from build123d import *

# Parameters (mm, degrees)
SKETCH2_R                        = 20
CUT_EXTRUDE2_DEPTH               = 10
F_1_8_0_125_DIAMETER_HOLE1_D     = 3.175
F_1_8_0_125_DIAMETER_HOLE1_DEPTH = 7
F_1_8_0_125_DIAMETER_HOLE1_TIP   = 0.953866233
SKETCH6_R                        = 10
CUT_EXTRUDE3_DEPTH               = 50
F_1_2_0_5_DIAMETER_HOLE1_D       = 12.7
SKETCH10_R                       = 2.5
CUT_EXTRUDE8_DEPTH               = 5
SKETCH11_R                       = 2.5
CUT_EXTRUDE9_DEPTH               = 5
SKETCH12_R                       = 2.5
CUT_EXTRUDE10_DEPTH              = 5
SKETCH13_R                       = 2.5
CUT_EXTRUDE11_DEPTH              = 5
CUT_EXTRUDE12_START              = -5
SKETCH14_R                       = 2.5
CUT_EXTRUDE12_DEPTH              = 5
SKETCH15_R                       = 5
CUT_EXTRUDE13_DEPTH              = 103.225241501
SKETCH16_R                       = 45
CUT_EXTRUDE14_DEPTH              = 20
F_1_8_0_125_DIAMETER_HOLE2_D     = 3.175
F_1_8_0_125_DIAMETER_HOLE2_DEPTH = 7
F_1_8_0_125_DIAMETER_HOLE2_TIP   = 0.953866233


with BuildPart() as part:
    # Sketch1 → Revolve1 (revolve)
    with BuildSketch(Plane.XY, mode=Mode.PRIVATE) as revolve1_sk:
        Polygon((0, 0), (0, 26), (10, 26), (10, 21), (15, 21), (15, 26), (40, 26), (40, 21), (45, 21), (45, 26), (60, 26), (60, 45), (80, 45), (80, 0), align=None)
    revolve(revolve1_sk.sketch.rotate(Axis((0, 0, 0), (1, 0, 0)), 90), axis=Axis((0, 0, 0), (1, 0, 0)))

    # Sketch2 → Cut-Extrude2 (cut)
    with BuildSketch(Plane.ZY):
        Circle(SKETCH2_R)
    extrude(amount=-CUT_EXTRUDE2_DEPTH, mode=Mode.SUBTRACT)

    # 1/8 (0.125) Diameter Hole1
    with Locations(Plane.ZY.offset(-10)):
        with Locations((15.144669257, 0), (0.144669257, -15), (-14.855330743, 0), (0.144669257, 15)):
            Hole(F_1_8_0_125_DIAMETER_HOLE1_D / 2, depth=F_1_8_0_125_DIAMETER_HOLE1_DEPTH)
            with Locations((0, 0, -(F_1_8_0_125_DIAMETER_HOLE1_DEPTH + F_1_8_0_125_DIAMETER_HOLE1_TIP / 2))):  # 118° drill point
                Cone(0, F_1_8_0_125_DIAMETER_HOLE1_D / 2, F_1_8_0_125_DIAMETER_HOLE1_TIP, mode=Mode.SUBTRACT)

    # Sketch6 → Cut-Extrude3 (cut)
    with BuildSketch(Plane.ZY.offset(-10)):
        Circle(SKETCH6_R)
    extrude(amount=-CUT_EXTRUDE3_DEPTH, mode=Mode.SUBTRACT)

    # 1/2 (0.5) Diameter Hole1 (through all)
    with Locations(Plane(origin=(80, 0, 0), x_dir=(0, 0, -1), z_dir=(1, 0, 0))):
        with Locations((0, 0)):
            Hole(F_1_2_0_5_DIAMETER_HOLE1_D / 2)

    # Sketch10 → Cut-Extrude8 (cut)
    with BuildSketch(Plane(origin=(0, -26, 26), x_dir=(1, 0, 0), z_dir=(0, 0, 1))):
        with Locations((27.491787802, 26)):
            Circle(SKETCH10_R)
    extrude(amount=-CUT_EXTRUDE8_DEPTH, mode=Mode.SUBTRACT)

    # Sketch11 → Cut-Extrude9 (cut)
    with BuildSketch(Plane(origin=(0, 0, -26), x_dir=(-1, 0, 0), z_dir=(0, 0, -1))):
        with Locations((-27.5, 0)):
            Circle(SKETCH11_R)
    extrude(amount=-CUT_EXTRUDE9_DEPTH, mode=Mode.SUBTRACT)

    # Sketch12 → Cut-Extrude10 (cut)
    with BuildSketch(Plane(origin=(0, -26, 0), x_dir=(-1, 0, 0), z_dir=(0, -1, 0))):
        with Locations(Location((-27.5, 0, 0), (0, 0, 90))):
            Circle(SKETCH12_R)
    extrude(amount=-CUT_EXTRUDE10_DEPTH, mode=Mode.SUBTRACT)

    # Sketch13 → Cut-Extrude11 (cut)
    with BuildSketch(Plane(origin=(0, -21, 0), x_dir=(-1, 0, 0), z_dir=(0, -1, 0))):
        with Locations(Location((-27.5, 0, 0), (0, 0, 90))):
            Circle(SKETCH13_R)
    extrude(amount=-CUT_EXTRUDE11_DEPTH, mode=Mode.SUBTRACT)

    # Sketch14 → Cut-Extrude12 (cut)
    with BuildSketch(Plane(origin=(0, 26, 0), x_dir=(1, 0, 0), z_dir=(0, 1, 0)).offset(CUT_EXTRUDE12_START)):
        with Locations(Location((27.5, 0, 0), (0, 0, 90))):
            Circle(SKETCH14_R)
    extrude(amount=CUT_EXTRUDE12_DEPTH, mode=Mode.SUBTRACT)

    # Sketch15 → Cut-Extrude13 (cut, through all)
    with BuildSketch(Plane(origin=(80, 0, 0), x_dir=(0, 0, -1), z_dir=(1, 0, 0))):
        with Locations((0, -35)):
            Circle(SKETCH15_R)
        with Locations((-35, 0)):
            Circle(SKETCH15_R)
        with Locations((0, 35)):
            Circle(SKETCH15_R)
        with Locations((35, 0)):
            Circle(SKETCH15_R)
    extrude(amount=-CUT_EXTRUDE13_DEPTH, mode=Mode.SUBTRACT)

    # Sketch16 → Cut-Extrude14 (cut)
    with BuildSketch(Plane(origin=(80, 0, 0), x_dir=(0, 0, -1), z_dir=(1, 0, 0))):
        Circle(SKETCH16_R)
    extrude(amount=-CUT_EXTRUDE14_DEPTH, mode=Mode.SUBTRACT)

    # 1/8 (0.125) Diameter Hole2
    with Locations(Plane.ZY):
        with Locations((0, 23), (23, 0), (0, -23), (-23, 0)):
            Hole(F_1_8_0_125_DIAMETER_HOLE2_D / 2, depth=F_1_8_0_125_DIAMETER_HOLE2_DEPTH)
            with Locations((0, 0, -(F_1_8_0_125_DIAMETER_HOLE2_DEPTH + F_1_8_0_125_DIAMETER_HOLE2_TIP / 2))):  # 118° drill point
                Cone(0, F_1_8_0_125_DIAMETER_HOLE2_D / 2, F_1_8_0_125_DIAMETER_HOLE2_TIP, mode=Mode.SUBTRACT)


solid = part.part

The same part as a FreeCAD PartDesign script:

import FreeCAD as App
import Part
import Sketcher

V = App.Vector
Q = App.Units.Quantity

doc = App.newDocument("Part")
body = doc.addObject("PartDesign::Body", "Body")

sketch1 = body.newObject("Sketcher::SketchObject", "Sketch")
sketch1.AttachmentSupport = (doc.getObject("XY_Plane"), [""])
sketch1.MapMode = "FlatFace"
sketch1.addGeometry([
    Part.LineSegment(V(0, 26, 0), V(0, 0, 0)),
    Part.LineSegment(V(0, 0, 0), V(80, 0, 0)),
    Part.LineSegment(V(80, 0, 0), V(80, 45, 0)),
    Part.LineSegment(V(80, 45, 0), V(60, 45, 0)),
    Part.LineSegment(V(60, 45, 0), V(60, 26, 0)),
    Part.LineSegment(V(60, 26, 0), V(45, 26, 0)),
    Part.LineSegment(V(45, 26, 0), V(45, 21, 0)),
    Part.LineSegment(V(45, 21, 0), V(40, 21, 0)),
    Part.LineSegment(V(40, 21, 0), V(40, 26, 0)),
    Part.LineSegment(V(40, 26, 0), V(15, 26, 0)),
    Part.LineSegment(V(15, 26, 0), V(15, 21, 0)),
    Part.LineSegment(V(15, 21, 0), V(10, 21, 0)),
    Part.LineSegment(V(10, 21, 0), V(10, 26, 0)),
    Part.LineSegment(V(10, 26, 0), V(0, 26, 0)),
], False)
sketch1.addConstraint([
    Sketcher.Constraint("Coincident", 0, 2, 1, 1),
    Sketcher.Constraint("Coincident", 1, 2, 2, 1),
    Sketcher.Constraint("Coincident", 2, 2, 3, 1),
    Sketcher.Constraint("Coincident", 3, 2, 4, 1),
    Sketcher.Constraint("Coincident", 4, 2, 5, 1),
    Sketcher.Constraint("Coincident", 5, 2, 6, 1),
    Sketcher.Constraint("Coincident", 6, 2, 7, 1),
    Sketcher.Constraint("Coincident", 7, 2, 8, 1),
    Sketcher.Constraint("Coincident", 8, 2, 9, 1),
    Sketcher.Constraint("Coincident", 9, 2, 10, 1),
    Sketcher.Constraint("Coincident", 10, 2, 11, 1),
    Sketcher.Constraint("Coincident", 11, 2, 12, 1),
    Sketcher.Constraint("Coincident", 12, 2, 13, 1),
    Sketcher.Constraint("Coincident", 13, 2, 0, 1),
    Sketcher.Constraint("Vertical", 0),
    Sketcher.Constraint("Horizontal", 1),
    Sketcher.Constraint("Vertical", 2),
    Sketcher.Constraint("Horizontal", 3),
    Sketcher.Constraint("Vertical", 4),
    Sketcher.Constraint("Horizontal", 5),
    Sketcher.Constraint("Vertical", 6),
    Sketcher.Constraint("Horizontal", 7),
    Sketcher.Constraint("Vertical", 8),
    Sketcher.Constraint("Horizontal", 9),
    Sketcher.Constraint("Vertical", 10),
    Sketcher.Constraint("Horizontal", 11),
    Sketcher.Constraint("Vertical", 12),
    Sketcher.Constraint("Horizontal", 13),
    Sketcher.Constraint("Coincident", 0, 2, -1, 1),
    Sketcher.Constraint("Horizontal", 5, 2, 8, 2),
    Sketcher.Constraint("Horizontal", 7, 2, 10, 2),
    Sketcher.Constraint("Horizontal", 9, 2, 12, 2),
    Sketcher.Constraint("Equal", 7, 11),
    Sketcher.Constraint("Equal", 11, 6),
    Sketcher.Constraint("DistanceX", 1, 1, 1, 2, Q("80 mm")),
    Sketcher.Constraint("DistanceX", 3, 2, 3, 1, Q("20 mm")),
    Sketcher.Constraint("DistanceX", 5, 2, 5, 1, Q("15 mm")),
    Sketcher.Constraint("DistanceX", 7, 2, 7, 1, Q("5 mm")),
    Sketcher.Constraint("DistanceX", 9, 2, 9, 1, Q("25 mm")),
    Sketcher.Constraint("DistanceY", 0, 2, 0, 1, Q("26 mm")),
    Sketcher.Constraint("DistanceY", 2, 1, 2, 2, Q("45 mm")),
])
revolution = body.newObject("PartDesign::Revolution", "Revolution")
revolution.Profile = sketch1
revolution.ReferenceAxis = (sketch1, ["H_Axis"])
revolution.Angle = 360

sketch2 = body.newObject("Sketcher::SketchObject", "Sketch001")
sketch2.AttachmentSupport = (doc.getObject("YZ_Plane"), [""])
sketch2.MapMode = "FlatFace"
sketch2.addGeometry(Part.Circle(V(0, 0, 0), V(0, 0, 1), 20), False)
sketch2.addConstraint([
    Sketcher.Constraint("Coincident", 0, 3, -1, 1),
    Sketcher.Constraint("Diameter", 0, Q("40 mm")),
])
pocket1 = body.newObject("PartDesign::Pocket", "Pocket")
pocket1.Profile = sketch2
pocket1.Length = 10
pocket1.Reversed = True

sketch3 = body.newObject("Sketcher::SketchObject", "Sketch002")
sketch3.AttachmentSupport = (doc.getObject("YZ_Plane"), [""])
sketch3.MapMode = "FlatFace"
sketch3.AttachmentOffset = App.Placement(V(0, 0, 10), App.Rotation())
sketch3.addGeometry([
    Part.Circle(V(0, 15.1, 0), V(0, 0, 1), 1.6),
    Part.Circle(V(-15, 0.1, 0), V(0, 0, 1), 1.6),
    Part.Circle(V(0, -14.9, 0), V(0, 0, 1), 1.6),
    Part.Circle(V(15, 0.1, 0), V(0, 0, 1), 1.6),
], False)
sketch3.addConstraint([
    Sketcher.Constraint("Equal", 0, 1),
    Sketcher.Constraint("Equal", 1, 2),
    Sketcher.Constraint("Equal", 2, 3),
    Sketcher.Constraint("Symmetric", 1, 3, 3, 3, -2),
    Sketcher.Constraint("PointOnObject", 0, 3, -2),
    Sketcher.Constraint("PointOnObject", 2, 3, -2),
    Sketcher.Constraint("Diameter", 0, Q("3.175 mm")),
    Sketcher.Constraint("DistanceX", 1, 3, -1, 1, Q("15 mm")),
    Sketcher.Constraint("DistanceY", 1, 3, 0, 3, Q("15 mm")),
    Sketcher.Constraint("DistanceY", 2, 3, 1, 3, Q("15 mm")),
    Sketcher.Constraint("DistanceY", -1, 1, 0, 3, Q("15.144669 mm")),
])
doc.recompute()
hole = body.newObject("PartDesign::Hole", "Hole")
hole.Profile = sketch3
hole.ThreadType = "None"
hole.Diameter = 3.175
hole.DepthType = "Dimension"
hole.Depth = 7
hole.DrillPoint = "Angled"
hole.DrillPointAngle = 118
hole.Reversed = True

sketch4 = body.newObject("Sketcher::SketchObject", "Sketch003")
sketch4.AttachmentSupport = (doc.getObject("YZ_Plane"), [""])
sketch4.MapMode = "FlatFace"
sketch4.AttachmentOffset = App.Placement(V(0, 0, 10), App.Rotation())
sketch4.addGeometry(Part.Circle(V(0, 0, 0), V(0, 0, 1), 10), False)
sketch4.addConstraint([
    Sketcher.Constraint("Coincident", 0, 3, -1, 1),
    Sketcher.Constraint("Diameter", 0, Q("20 mm")),
])
pocket2 = body.newObject("PartDesign::Pocket", "Pocket001")
pocket2.Profile = sketch4
pocket2.Length = 50
pocket2.Reversed = True

sketch5 = body.newObject("Sketcher::SketchObject", "Sketch004")
sketch5.AttachmentSupport = (doc.getObject("YZ_Plane"), [""])
sketch5.MapMode = "FlatFace"
sketch5.AttachmentOffset = App.Placement(V(0, 0, 80), App.Rotation())
sketch5.addGeometry(Part.Circle(V(0, 0, 0), V(0, 0, 1), 6), False)
sketch5.addConstraint([
    Sketcher.Constraint("Coincident", 0, 3, -1, 1),
    Sketcher.Constraint("Diameter", 0, Q("12.7 mm")),
])
doc.recompute()
hole2 = body.newObject("PartDesign::Hole", "Hole001")
hole2.Profile = sketch5
hole2.ThreadType = "None"
hole2.Diameter = 12.7
hole2.DepthType = "ThroughAll"

sketch6 = body.newObject("Sketcher::SketchObject", "Sketch005")
sketch6.AttachmentSupport = (doc.getObject("XY_Plane"), [""])
sketch6.MapMode = "FlatFace"
sketch6.AttachmentOffset = App.Placement(V(0, 0, 26), App.Rotation())
sketch6.addGeometry(Part.Circle(V(27.5, 0, 0), V(0, 0, 1), 2.5), False)
sketch6.addConstraint([
    Sketcher.Constraint("PointOnObject", 0, 3, -1),
    Sketcher.Constraint("Diameter", 0, Q("5 mm")),
    Sketcher.Constraint("DistanceX", -1, 1, 0, 3, Q("27.491788 mm")),
])
pocket3 = body.newObject("PartDesign::Pocket", "Pocket002")
pocket3.Profile = sketch6
pocket3.Length = 5

sketch7 = body.newObject("Sketcher::SketchObject", "Sketch006")
sketch7.AttachmentSupport = (doc.getObject("XY_Plane"), [""])
sketch7.MapMode = "FlatFace"
sketch7.AttachmentOffset = App.Placement(V(0, 0, -26), App.Rotation())
sketch7.addGeometry(Part.Circle(V(27.5, 0, 0), V(0, 0, 1), 2.5), False)
sketch7.addConstraint([
    Sketcher.Constraint("PointOnObject", 0, 3, -1),
    Sketcher.Constraint("Diameter", 0, Q("5 mm")),
    Sketcher.Constraint("DistanceX", -1, 1, 0, 3, Q("27.5 mm")),
])
pocket4 = body.newObject("PartDesign::Pocket", "Pocket003")
pocket4.Profile = sketch7
pocket4.Length = 5
pocket4.Reversed = True

sketch8 = body.newObject("Sketcher::SketchObject", "Sketch007")
sketch8.AttachmentSupport = (doc.getObject("XZ_Plane"), [""])
sketch8.MapMode = "FlatFace"
sketch8.AttachmentOffset = App.Placement(V(0, 0, 26), App.Rotation())
sketch8.addGeometry(Part.Circle(V(27.5, 0, 0), V(0, 0, 1), 2.5), False)
sketch8.addConstraint([
    Sketcher.Constraint("PointOnObject", 0, 3, -1),
    Sketcher.Constraint("Diameter", 0, Q("5 mm")),
    Sketcher.Constraint("DistanceX", -1, 1, 0, 3, Q("27.5 mm")),
])
pocket5 = body.newObject("PartDesign::Pocket", "Pocket004")
pocket5.Profile = sketch8
pocket5.Length = 5

sketch9 = body.newObject("Sketcher::SketchObject", "Sketch008")
sketch9.AttachmentSupport = (doc.getObject("XZ_Plane"), [""])
sketch9.MapMode = "FlatFace"
sketch9.AttachmentOffset = App.Placement(V(0, 0, 21), App.Rotation())
sketch9.addGeometry(Part.Circle(V(27.5, 0, 0), V(0, 0, 1), 2.5), False)
sketch9.addConstraint([
    Sketcher.Constraint("PointOnObject", 0, 3, -1),
    Sketcher.Constraint("Diameter", 0, Q("5 mm")),
    Sketcher.Constraint("DistanceX", -1, 1, 0, 3, Q("27.5 mm")),
])
pocket6 = body.newObject("PartDesign::Pocket", "Pocket005")
pocket6.Profile = sketch9
pocket6.Length = 5

sketch10 = body.newObject("Sketcher::SketchObject", "Sketch009")
sketch10.AttachmentSupport = (doc.getObject("XZ_Plane"), [""])
sketch10.MapMode = "FlatFace"
sketch10.AttachmentOffset = App.Placement(V(0, 0, -21), App.Rotation())
sketch10.addGeometry(Part.Circle(V(27.5, 0, 0), V(0, 0, 1), 2.5), False)
sketch10.addConstraint([
    Sketcher.Constraint("PointOnObject", 0, 3, -1),
    Sketcher.Constraint("Diameter", 0, Q("5 mm")),
    Sketcher.Constraint("DistanceX", -1, 1, 0, 3, Q("27.5 mm")),
])
pocket7 = body.newObject("PartDesign::Pocket", "Pocket006")
pocket7.Profile = sketch10
pocket7.Length = 5

sketch11 = body.newObject("Sketcher::SketchObject", "Sketch010")
sketch11.AttachmentSupport = (doc.getObject("YZ_Plane"), [""])
sketch11.MapMode = "FlatFace"
sketch11.AttachmentOffset = App.Placement(V(0, 0, 80), App.Rotation())
sketch11.addGeometry([
    Part.Circle(V(-35, 0, 0), V(0, 0, 1), 5),
    Part.Circle(V(0, 35, 0), V(0, 0, 1), 5),
    Part.Circle(V(35, 0, 0), V(0, 0, 1), 5),
    Part.Circle(V(0, -35, 0), V(0, 0, 1), 5),
], False)
sketch11.addConstraint([
    Sketcher.Constraint("Equal", 0, 1),
    Sketcher.Constraint("Equal", 1, 2),
    Sketcher.Constraint("Equal", 2, 3),
    Sketcher.Constraint("Symmetric", 0, 3, 2, 3, -1, 1),
    Sketcher.Constraint("Symmetric", 1, 3, 3, 3, -1, 1),
    Sketcher.Constraint("PointOnObject", 0, 3, -1),
    Sketcher.Constraint("PointOnObject", 1, 3, -2),
    Sketcher.Constraint("Diameter", 0, Q("10 mm")),
    Sketcher.Constraint("DistanceX", 0, 3, -1, 1, Q("35 mm")),
    Sketcher.Constraint("DistanceY", -1, 1, 1, 3, Q("35 mm")),
])
pocket8 = body.newObject("PartDesign::Pocket", "Pocket007")
pocket8.Profile = sketch11
pocket8.Type = "ThroughAll"

sketch12 = body.newObject("Sketcher::SketchObject", "Sketch011")
sketch12.AttachmentSupport = (doc.getObject("YZ_Plane"), [""])
sketch12.MapMode = "FlatFace"
sketch12.AttachmentOffset = App.Placement(V(0, 0, 80), App.Rotation())
sketch12.addGeometry(Part.Circle(V(0, 0, 0), V(0, 0, 1), 45), False)
sketch12.addConstraint([
    Sketcher.Constraint("Coincident", 0, 3, -1, 1),
    Sketcher.Constraint("Diameter", 0, Q("90 mm")),
])
pocket9 = body.newObject("PartDesign::Pocket", "Pocket008")
pocket9.Profile = sketch12
pocket9.Length = 20

sketch13 = body.newObject("Sketcher::SketchObject", "Sketch012")
sketch13.AttachmentSupport = (doc.getObject("YZ_Plane"), [""])
sketch13.MapMode = "FlatFace"
sketch13.addGeometry([
    Part.Circle(V(23, 0, 0), V(0, 0, 1), 1.6),
    Part.Circle(V(0, 23, 0), V(0, 0, 1), 1.6),
    Part.Circle(V(-23, 0, 0), V(0, 0, 1), 1.6),
    Part.Circle(V(0, -23, 0), V(0, 0, 1), 1.6),
], False)
sketch13.addConstraint([
    Sketcher.Constraint("Equal", 0, 1),
    Sketcher.Constraint("Equal", 1, 2),
    Sketcher.Constraint("Equal", 2, 3),
    Sketcher.Constraint("Symmetric", 0, 3, 2, 3, -1, 1),
    Sketcher.Constraint("Symmetric", 1, 3, 3, 3, -1, 1),
    Sketcher.Constraint("PointOnObject", 0, 3, -1),
    Sketcher.Constraint("PointOnObject", 1, 3, -2),
    Sketcher.Constraint("Diameter", 0, Q("3.175 mm")),
    Sketcher.Constraint("DistanceX", -1, 1, 0, 3, Q("23 mm")),
    Sketcher.Constraint("DistanceY", -1, 1, 1, 3, Q("23 mm")),
])
doc.recompute()
hole3 = body.newObject("PartDesign::Hole", "Hole002")
hole3.Profile = sketch13
hole3.ThreadType = "None"
hole3.Diameter = 3.175
hole3.DepthType = "Dimension"
hole3.Depth = 7
hole3.DrillPoint = "Angled"
hole3.DrillPointAngle = 118
hole3.Reversed = True

doc.recompute()
